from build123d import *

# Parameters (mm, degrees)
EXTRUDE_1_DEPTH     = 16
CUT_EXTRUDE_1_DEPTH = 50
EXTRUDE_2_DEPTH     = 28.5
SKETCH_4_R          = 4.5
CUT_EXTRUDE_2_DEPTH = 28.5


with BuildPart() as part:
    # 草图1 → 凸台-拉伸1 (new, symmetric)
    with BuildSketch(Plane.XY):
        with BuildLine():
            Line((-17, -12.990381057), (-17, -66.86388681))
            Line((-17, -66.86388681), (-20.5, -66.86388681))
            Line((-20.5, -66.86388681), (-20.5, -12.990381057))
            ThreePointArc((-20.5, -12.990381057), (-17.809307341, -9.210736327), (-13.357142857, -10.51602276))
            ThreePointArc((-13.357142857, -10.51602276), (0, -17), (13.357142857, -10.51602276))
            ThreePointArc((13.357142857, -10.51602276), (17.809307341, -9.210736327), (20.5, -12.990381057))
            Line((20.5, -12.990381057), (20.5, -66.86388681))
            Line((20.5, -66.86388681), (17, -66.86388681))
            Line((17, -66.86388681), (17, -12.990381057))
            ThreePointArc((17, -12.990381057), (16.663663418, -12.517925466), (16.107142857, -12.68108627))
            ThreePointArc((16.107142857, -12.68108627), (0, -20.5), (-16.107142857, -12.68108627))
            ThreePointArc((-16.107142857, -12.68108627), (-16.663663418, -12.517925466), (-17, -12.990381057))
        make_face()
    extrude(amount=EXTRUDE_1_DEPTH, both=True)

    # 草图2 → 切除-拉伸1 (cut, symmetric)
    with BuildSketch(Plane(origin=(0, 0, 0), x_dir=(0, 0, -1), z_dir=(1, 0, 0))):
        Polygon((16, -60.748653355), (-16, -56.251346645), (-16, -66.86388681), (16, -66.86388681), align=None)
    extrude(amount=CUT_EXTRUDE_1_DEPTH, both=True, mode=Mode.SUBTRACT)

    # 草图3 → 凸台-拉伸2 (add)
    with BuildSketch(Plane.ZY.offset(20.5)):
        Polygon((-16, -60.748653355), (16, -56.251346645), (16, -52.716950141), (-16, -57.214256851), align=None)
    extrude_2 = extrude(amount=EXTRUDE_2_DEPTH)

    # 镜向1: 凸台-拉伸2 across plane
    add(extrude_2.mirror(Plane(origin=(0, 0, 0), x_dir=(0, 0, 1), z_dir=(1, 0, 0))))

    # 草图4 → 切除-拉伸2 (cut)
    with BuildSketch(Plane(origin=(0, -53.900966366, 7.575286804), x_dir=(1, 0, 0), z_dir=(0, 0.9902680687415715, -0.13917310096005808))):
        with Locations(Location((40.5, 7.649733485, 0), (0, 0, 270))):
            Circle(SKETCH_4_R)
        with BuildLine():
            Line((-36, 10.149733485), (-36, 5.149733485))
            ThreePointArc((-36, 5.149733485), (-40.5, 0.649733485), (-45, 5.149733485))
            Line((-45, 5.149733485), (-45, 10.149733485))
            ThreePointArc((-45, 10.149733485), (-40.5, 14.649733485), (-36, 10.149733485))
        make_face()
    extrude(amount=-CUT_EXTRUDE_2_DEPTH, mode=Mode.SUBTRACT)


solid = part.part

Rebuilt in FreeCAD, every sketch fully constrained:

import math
import FreeCAD as App
import Part
import Sketcher
Q = App.Units.Quantity


def add_polygon(sketch, points):
    """Adds a closed chain of lines whose ends are joined by coincident constraints."""
    first, n = sketch.GeometryCount, len(points)
    for a, b in zip(points, points[1:] + points[:1]):
        sketch.addGeometry(Part.LineSegment(App.Vector(*a, 0), App.Vector(*b, 0)), False)
    for i in range(n):
        sketch.addConstraint(Sketcher.Constraint("Coincident", first + i, 2, first + (i + 1) % n, 1))

doc = App.newDocument("Part")
params = doc.addObject("Spreadsheet::Sheet", "Params")
for row, (alias, value) in enumerate([
    ("sketch1_radius", "4 mm"),
    ("sketch1_radius2", "17 mm"),
    ("sketch1_radius3", "0.5 mm"),
    ("pad1_length", "32 mm"),
    ("sketch2_height", "32 mm"),
    ("pocket1_length", "100 mm"),
    ("pad2_length", "28.5 mm"),
    ("sketch4_diameter", "9 mm"),
    ("sketch4_height", "5 mm"),
    ("pocket2_length", "28.5 mm"),
], start=1):
    params.set(f"A{row}", alias)
    params.set(f"B{row}", "=" + value)
    params.setAlias(f"B{row}", alias)

body = doc.addObject("PartDesign::Body", "Body")

# Sketch on XY plane
sketch1 = body.newObject("Sketcher::SketchObject", "Sketch")
sketch1.AttachmentSupport = (doc.getObject("XY_Plane"), [""])
sketch1.MapMode = "FlatFace"
sketch1.addGeometry([
    Part.LineSegment(App.Vector(-17, -66.9, 0), App.Vector(-17, -13, 0)),  # 0
    Part.ArcOfCircle(Part.Circle(App.Vector(-16.5, -13, 0), App.Vector(0, 0, 1), 0.5), math.radians(38), math.radians(180)),  # 1
    Part.ArcOfCircle(Part.Circle(App.Vector(0, 0, 0), App.Vector(0, 0, 1), 20.5), math.radians(-142), math.radians(-38)),  # 2
    Part.ArcOfCircle(Part.Circle(App.Vector(16.5, -13, 0), App.Vector(0, 0, 1), 0.5), math.radians(0), math.radians(142)),  # 3
    Part.LineSegment(App.Vector(17, -13, 0), App.Vector(17, -66.9, 0)),  # 4
    Part.LineSegment(App.Vector(17, -66.9, 0), App.Vector(20.5, -66.9, 0)),  # 5
    Part.LineSegment(App.Vector(20.5, -66.9, 0), App.Vector(20.5, -13, 0)),  # 6
    Part.ArcOfCircle(Part.Circle(App.Vector(16.5, -13, 0), App.Vector(0, 0, 1), 4), math.radians(0), math.radians(142)),  # 7
    Part.ArcOfCircle(Part.Circle(App.Vector(0, 0, 0), App.Vector(0, 0, 1), 17), math.radians(-142), math.radians(-38)),  # 8
    Part.ArcOfCircle(Part.Circle(App.Vector(-16.5, -13, 0), App.Vector(0, 0, 1), 4), math.radians(38), math.radians(180)),  # 9
    Part.LineSegment(App.Vector(-20.5, -13, 0), App.Vector(-20.5, -66.9, 0)),  # 10
    Part.LineSegment(App.Vector(-20.5, -66.9, 0), App.Vector(-17, -66.9, 0)),  # 11
], False)
sketch1.addConstraint([
    Sketcher.Constraint("Tangent", 0, 2, 1, 2),
    Sketcher.Constraint("Tangent", 1, 1, 2, 1),
    Sketcher.Constraint("Tangent", 2, 2, 3, 2),
    Sketcher.Constraint("Tangent", 3, 1, 4, 1),
    Sketcher.Constraint("Coincident", 4, 2, 5, 1),
    Sketcher.Constraint("Coincident", 5, 2, 6, 1),
    Sketcher.Constraint("Tangent", 6, 2, 7, 1),
    Sketcher.Constraint("Tangent", 7, 2, 8, 2),
    Sketcher.Constraint("Tangent", 8, 1, 9, 1),
    Sketcher.Constraint("Tangent", 9, 2, 10, 1),
    Sketcher.Constraint("Coincident", 10, 2, 11, 1),
    Sketcher.Constraint("Coincident", 11, 2, 0, 1),
    Sketcher.Constraint("Vertical", 0),
    Sketcher.Constraint("Vertical", 4),
    Sketcher.Constraint("Horizontal", 5),
    Sketcher.Constraint("Vertical", 6),
    Sketcher.Constraint("Vertical", 10),
    Sketcher.Constraint("Horizontal", 11),
    Sketcher.Constraint("Coincident", 2, 3, -1, 1),
    Sketcher.Constraint("Coincident", 8, 3, -1, 1),
    Sketcher.Constraint("Coincident", 7, 3, 3, 3),
    Sketcher.Constraint("Coincident", 9, 3, 1, 3),
    Sketcher.Constraint("Equal", 1, 3),
    Sketcher.Constraint("Symmetric", 5, 2, 10, 2, -2),
    Sketcher.Constraint("Radius", 7, Q("4 mm")),
    Sketcher.Constraint("Radius", 8, Q("17 mm")),
    Sketcher.Constraint("Radius", 1, Q("0.5 mm")),
    Sketcher.Constraint("DistanceX", 0, 2, -1, 1, Q("17 mm")),
    Sketcher.Constraint("DistanceY", 4, 2, 2, 2, Q("54.182801 mm")),
])
sketch1.setExpression("Constraints[24]", "Params.sketch1_radius")
sketch1.setExpression("Constraints[25]", "Params.sketch1_radius2")
sketch1.setExpression("Constraints[26]", "Params.sketch1_radius3")
pad1 = body.newObject("PartDesign::Pad", "Pad")
pad1.Profile = sketch1
pad1.setExpression("Length", "Params.pad1_length")
pad1.Midplane = True

# Sketch on YZ plane
sketch2 = body.newObject("Sketcher::SketchObject", "Sketch001")
sketch2.AttachmentSupport = (doc.getObject("YZ_Plane"), [""])
sketch2.MapMode = "FlatFace"
add_polygon(sketch2, [(-61, -16), (-56, 16), (-67, 16), (-67, -16)])  # lines 0-3
sketch2.addConstraint([
    Sketcher.Constraint("Horizontal", 1),
    Sketcher.Constraint("Vertical", 2),
    Sketcher.Constraint("Horizontal", 3),
    Sketcher.Constraint("DistanceY", 2, 2, 2, 1, Q("32 mm")),
    Sketcher.Constraint("Angle", 0, Q("82 deg")),
    Sketcher.Constraint("DistanceY", -1, 1, 0, 2, Q("16 mm")),
    Sketcher.Constraint("DistanceX", 1, 2, 1, 1, Q("10.61254 mm")),
    Sketcher.Constraint("DistanceX", 0, 2, -1, 1, Q("56.251347 mm")),
])
sketch2.setExpression("Constraints[7]", "Params.sketch2_height")
pocket1 = body.newObject("PartDesign::Pocket", "Pocket")
pocket1.Profile = sketch2
pocket1.setExpression("Length", "Params.pocket1_length")
pocket1.Midplane = True

# Sketch on YZ plane
sketch3 = body.newObject("Sketcher::SketchObject", "Sketch002")
sketch3.AttachmentSupport = (doc.getObject("YZ_Plane"), [""])
sketch3.MapMode = "FlatFace"
sketch3.AttachmentOffset = App.Placement(App.Vector(0, 0, -20.5), App.Rotation())
add_polygon(sketch3, [(-60.7, -16), (-56.3, 16), (-52.7, 16), (-57.2, -16)])  # lines 0-3
sketch3.addConstraint([
    Sketcher.Constraint("Horizontal", 1),
    Sketcher.Constraint("Horizontal", 3),
    Sketcher.Constraint("Parallel", 0, 2),
    Sketcher.Constraint("Angle", 0, Q("82 deg")),
    Sketcher.Constraint("DistanceY", -1, 1, 0, 2, Q("16 mm")),
    Sketcher.Constraint("DistanceY", 2, 2, -1, 1, Q("16 mm")),
    Sketcher.Constraint("DistanceX", 1, 1, 1, 2, Q("3.534397 mm")),
    Sketcher.Constraint("DistanceX", 1, 2, -1, 1, Q("52.71695 mm")),
])
pad2 = body.newObject("PartDesign::Pad", "Pad001")
pad2.Profile = sketch3
pad2.setExpression("Length", "Params.pad2_length")
pad2.Reversed = True
doc.recompute()

mirrored = body.newObject("PartDesign::Mirrored", "Mirrored")
mirrored.Originals = [pad2]
mirrored.MirrorPlane = (doc.getObject("YZ_Plane"), [""])
body.Tip = mirrored

# Sketch on an angled plane
sketch4 = body.newObject("Sketcher::SketchObject", "Sketch003")
sketch4.Placement = App.Placement(App.Vector(0, -53.900966, 7.575287), App.Rotation(App.Vector(1, 0, 0), App.Vector(0, -0.139173101, -0.990268069), App.Vector(0, 0.990268069, -0.139173101), "ZXY"))
sketch4.addGeometry([
    Part.Circle(App.Vector(40.5, 7.6, 0), App.Vector(0, 0, 1), 4.5),  # 0
    Part.LineSegment(App.Vector(-36, 5.1, 0), App.Vector(-36, 10.1, 0)),  # 1
    Part.ArcOfCircle(Part.Circle(App.Vector(-40.5, 10.1, 0), App.Vector(0, 0, 1), 4.5), math.radians(0), math.radians(180)),  # 2
    Part.LineSegment(App.Vector(-45, 10.1, 0), App.Vector(-45, 5.1, 0)),  # 3
    Part.ArcOfCircle(Part.Circle(App.Vector(-40.5, 5.1, 0), App.Vector(0, 0, 1), 4.5), math.radians(180), math.radians(360)),  # 4
], False)
sketch4.addConstraint([
    Sketcher.Constraint("Tangent", 1, 2, 2, 1),
    Sketcher.Constraint("Tangent", 2, 2, 3, 1),
    Sketcher.Constraint("Tangent", 3, 2, 4, 1),
    Sketcher.Constraint("Tangent", 4, 2, 1, 1),
    Sketcher.Constraint("Vertical", 1),
    Sketcher.Constraint("Vertical", 3),
    Sketcher.Constraint("Equal", 0, 2),
    Sketcher.Constraint("Diameter", 0, Q("9 mm")),
    Sketcher.Constraint("DistanceY", 1, 1, 1, 2, Q("5 mm")),
    Sketcher.Constraint("DistanceX", 1, 2, -1, 1, Q("36 mm")),
    Sketcher.Constraint("DistanceX", 2, 3, 0, 3, Q("81 mm")),
    Sketcher.Constraint("DistanceY", 0, 3, 2, 3, Q("2.5 mm")),
    Sketcher.Constraint("DistanceY", -1, 1, 0, 3, Q("7.649733 mm")),
])
sketch4.setExpression("Constraints[7]", "Params.sketch4_diameter")
sketch4.setExpression("Constraints[8]", "Params.sketch4_height")
pocket2 = body.newObject("PartDesign::Pocket", "Pocket001")
pocket2.Profile = sketch4
pocket2.setExpression("Length", "Params.pocket2_length")

doc.recompute()
